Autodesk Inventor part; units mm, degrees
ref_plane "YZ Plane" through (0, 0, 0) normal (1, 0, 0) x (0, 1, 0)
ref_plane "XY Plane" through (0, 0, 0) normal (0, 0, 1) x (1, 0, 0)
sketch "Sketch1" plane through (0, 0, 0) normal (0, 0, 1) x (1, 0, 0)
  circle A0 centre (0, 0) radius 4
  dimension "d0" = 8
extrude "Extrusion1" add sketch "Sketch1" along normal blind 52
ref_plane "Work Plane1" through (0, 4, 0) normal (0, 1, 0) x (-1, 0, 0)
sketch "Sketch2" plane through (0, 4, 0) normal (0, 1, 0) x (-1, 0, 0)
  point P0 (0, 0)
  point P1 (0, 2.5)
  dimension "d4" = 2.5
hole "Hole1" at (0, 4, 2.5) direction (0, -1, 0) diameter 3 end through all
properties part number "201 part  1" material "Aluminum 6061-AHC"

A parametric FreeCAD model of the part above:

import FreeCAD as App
import Part
import Sketcher
from FreeCAD import Vector

doc = App.newDocument("Part")
body = doc.addObject("PartDesign::Body", "Body")

sketch1 = body.newObject("Sketcher::SketchObject", "Sketch")
sketch1.AttachmentSupport = (doc.getObject("XY_Plane"), [""])
sketch1.MapMode = "FlatFace"
sketch1.addGeometry(Part.Circle(Vector(0, 0, 0), Vector(0, 0, 1), 4), False)
sketch1.addConstraint([
    Sketcher.Constraint("Coincident", 0, 3, -1, 1),
    Sketcher.Constraint("Diameter", 0, 8.0),
])
pad1 = body.newObject("PartDesign::Pad", "Pad")
pad1.Profile = sketch1
pad1.Length = 52

sketch2 = body.newObject("Sketcher::SketchObject", "Sketch001")
sketch2.AttachmentSupport = (doc.getObject("XZ_Plane"), [""])
sketch2.MapMode = "FlatFace"
sketch2.AttachmentOffset = App.Placement(Vector(0, 0, -4), App.Rotation())
sketch2.addGeometry(Part.Circle(Vector(0, 2.5, 0), Vector(0, 0, 1), 1.5), False)
sketch2.addConstraint([
    Sketcher.Constraint("PointOnObject", 0, 3, -2),
    Sketcher.Constraint("Diameter", 0, 3.0),
    Sketcher.Constraint("DistanceY", -1, 1, 0, 3, 2.5),
])
doc.recompute()
hole = body.newObject("PartDesign::Hole", "Hole")
hole.Profile = sketch2
hole.ThreadType = "None"
hole.Diameter = 3
hole.DepthType = "ThroughAll"
hole.Reversed = True

doc.recompute()
